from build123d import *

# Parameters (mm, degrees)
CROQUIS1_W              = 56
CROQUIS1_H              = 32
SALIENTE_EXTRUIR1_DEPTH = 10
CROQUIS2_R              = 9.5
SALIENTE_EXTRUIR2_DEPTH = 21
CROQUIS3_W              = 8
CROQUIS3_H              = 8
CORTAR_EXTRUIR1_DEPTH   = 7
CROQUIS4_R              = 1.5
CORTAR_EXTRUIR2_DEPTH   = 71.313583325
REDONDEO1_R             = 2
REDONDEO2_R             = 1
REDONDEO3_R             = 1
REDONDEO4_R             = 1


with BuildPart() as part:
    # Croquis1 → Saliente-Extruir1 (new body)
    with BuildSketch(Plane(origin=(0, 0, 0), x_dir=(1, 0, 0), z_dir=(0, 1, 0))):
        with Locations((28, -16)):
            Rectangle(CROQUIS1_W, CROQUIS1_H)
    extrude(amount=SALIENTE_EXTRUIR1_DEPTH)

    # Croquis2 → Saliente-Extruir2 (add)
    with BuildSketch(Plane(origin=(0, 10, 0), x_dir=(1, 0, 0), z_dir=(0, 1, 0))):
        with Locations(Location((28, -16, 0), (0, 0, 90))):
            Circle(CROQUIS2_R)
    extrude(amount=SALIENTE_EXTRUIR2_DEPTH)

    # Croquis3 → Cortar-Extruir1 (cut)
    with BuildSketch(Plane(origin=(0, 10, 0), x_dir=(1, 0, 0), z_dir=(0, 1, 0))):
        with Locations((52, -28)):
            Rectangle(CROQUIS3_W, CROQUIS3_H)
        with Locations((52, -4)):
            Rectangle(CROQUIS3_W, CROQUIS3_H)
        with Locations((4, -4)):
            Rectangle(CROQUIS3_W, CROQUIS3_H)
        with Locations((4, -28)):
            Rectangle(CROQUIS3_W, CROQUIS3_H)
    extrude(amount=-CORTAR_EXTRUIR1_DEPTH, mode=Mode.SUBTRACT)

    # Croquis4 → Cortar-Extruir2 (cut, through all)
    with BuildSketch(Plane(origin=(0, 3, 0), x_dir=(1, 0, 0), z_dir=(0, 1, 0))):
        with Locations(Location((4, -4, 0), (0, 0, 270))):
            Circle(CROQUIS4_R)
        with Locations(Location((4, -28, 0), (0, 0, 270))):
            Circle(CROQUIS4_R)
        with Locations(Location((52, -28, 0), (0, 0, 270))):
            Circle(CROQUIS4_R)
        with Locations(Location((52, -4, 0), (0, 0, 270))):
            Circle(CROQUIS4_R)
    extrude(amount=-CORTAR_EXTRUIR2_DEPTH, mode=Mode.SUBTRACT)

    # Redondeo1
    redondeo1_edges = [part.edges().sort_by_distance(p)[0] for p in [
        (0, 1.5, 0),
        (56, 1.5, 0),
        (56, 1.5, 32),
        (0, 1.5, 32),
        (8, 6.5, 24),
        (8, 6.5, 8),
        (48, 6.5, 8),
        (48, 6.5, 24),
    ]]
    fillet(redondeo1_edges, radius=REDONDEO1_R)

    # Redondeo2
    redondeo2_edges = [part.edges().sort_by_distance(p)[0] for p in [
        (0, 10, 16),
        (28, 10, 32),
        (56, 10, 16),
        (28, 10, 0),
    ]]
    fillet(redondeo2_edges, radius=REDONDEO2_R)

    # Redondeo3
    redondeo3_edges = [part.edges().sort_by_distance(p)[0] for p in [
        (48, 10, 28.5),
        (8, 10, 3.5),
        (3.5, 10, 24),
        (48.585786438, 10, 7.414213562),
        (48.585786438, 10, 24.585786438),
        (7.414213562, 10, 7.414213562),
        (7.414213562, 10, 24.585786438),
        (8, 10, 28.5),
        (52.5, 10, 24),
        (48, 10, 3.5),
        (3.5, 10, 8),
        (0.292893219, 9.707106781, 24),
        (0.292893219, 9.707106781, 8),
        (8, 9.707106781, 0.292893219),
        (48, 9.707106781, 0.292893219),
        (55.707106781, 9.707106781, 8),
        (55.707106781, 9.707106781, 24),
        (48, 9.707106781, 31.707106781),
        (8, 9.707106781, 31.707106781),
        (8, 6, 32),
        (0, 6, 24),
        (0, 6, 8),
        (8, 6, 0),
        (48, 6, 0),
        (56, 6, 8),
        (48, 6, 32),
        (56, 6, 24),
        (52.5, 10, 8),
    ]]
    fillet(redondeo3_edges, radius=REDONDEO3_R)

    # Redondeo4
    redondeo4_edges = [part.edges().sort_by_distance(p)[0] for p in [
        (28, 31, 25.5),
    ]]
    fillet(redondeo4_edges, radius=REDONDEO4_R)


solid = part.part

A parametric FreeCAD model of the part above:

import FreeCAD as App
import Part
import Sketcher
from FreeCAD import Vector


def edges_at(feature, points):
    """Names of the edges that pass closest to the given points."""
    edges = feature.Shape.Edges
    near = lambda p: min(range(len(edges)), key=lambda i: edges[i].distToShape(Part.Vertex(*p))[0])
    return sorted({f"Edge{near(p) + 1}" for p in points})


def add_polygon(sketch, points):
    """Adds a closed chain of lines whose ends are joined by coincident constraints."""
    first, n = sketch.GeometryCount, len(points)
    for a, b in zip(points, points[1:] + points[:1]):
        sketch.addGeometry(Part.LineSegment(App.Vector(*a, 0), App.Vector(*b, 0)), False)
    for i in range(n):
        sketch.addConstraint(Sketcher.Constraint("Coincident", first + i, 2, first + (i + 1) % n, 1))

doc = App.newDocument("Part")
params = doc.addObject("Spreadsheet::Sheet", "Params")
for row, (alias, value) in enumerate([
    ("sketch1_width", "56 mm"),
    ("sketch1_height", "32 mm"),
    ("pad1_length", "10 mm"),
    ("sketch2_diameter", "19 mm"),
    ("pad2_length", "21 mm"),
    ("sketch3_width", "8 mm"),
    ("pocket1_length", "7 mm"),
    ("sketch4_diameter", "3 mm"),
    ("fillet_radius", "2 mm"),
    ("fillet2_radius", "1 mm"),
    ("fillet3_radius", "1 mm"),
    ("fillet4_radius", "1 mm"),
], start=1):
    params.set(f"A{row}", alias)
    params.set(f"B{row}", "=" + value)
    params.setAlias(f"B{row}", alias)

body = doc.addObject("PartDesign::Body", "Body")

sketch1 = body.newObject("Sketcher::SketchObject", "Sketch")
sketch1.AttachmentSupport = (doc.getObject("XZ_Plane"), [""])
sketch1.MapMode = "FlatFace"
add_polygon(sketch1, [(0, 0), (0, 32), (56, 32), (56, 0)])
sketch1.addConstraint(Sketcher.Constraint("Vertical", 0))
sketch1.addConstraint(Sketcher.Constraint("Horizontal", 1))
sketch1.addConstraint(Sketcher.Constraint("Vertical", 2))
sketch1.addConstraint(Sketcher.Constraint("Horizontal", 3))
sketch1.addConstraint(Sketcher.Constraint("Coincident", 3, 2, -1, 1))
sketch1.addConstraint(Sketcher.Constraint("DistanceX", 1, 1, 1, 2, 56.0))
sketch1.addConstraint(Sketcher.Constraint("DistanceY", 0, 1, 0, 2, 32.0))
sketch1.setExpression("Constraints[9]", "Params.sketch1_width")
sketch1.setExpression("Constraints[10]", "Params.sketch1_height")
pad1 = body.newObject("PartDesign::Pad", "Pad")
pad1.Profile = sketch1
pad1.setExpression("Length", "Params.pad1_length")
pad1.Reversed = True

sketch2 = body.newObject("Sketcher::SketchObject", "Sketch001")
sketch2.AttachmentSupport = (doc.getObject("XZ_Plane"), [""])
sketch2.MapMode = "FlatFace"
sketch2.AttachmentOffset = App.Placement(Vector(0, 0, -10), App.Rotation())
sketch2.addGeometry(Part.Circle(Vector(28, 16, 0), Vector(0, 0, 1), 10), False)
sketch2.addConstraint(Sketcher.Constraint("Diameter", 0, 19.0))
sketch2.addConstraint(Sketcher.Constraint("DistanceX", -1, 1, 0, 3, 28.0))
sketch2.addConstraint(Sketcher.Constraint("DistanceY", -1, 1, 0, 3, 16.0))
sketch2.setExpression("Constraints[0]", "Params.sketch2_diameter")
pad2 = body.newObject("PartDesign::Pad", "Pad001")
pad2.Profile = sketch2
pad2.setExpression("Length", "Params.pad2_length")
pad2.Reversed = True

sketch3 = body.newObject("Sketcher::SketchObject", "Sketch002")
sketch3.AttachmentSupport = (doc.getObject("XZ_Plane"), [""])
sketch3.MapMode = "FlatFace"
sketch3.AttachmentOffset = App.Placement(Vector(0, 0, -10), App.Rotation())
add_polygon(sketch3, [(48, 24), (48, 32), (56, 32), (56, 24)])
add_polygon(sketch3, [(48, 0), (48, 8), (56, 8), (56, 0)])
add_polygon(sketch3, [(0, 0), (0, 8), (8, 8), (8, 0)])
add_polygon(sketch3, [(0, 24), (0, 32), (8, 32), (8, 24)])
sketch3.addConstraint(Sketcher.Constraint("Vertical", 0))
sketch3.addConstraint(Sketcher.Constraint("Horizontal", 1))
sketch3.addConstraint(Sketcher.Constraint("Vertical", 2))
sketch3.addConstraint(Sketcher.Constraint("Horizontal", 3))
sketch3.addConstraint(Sketcher.Constraint("Vertical", 4))
sketch3.addConstraint(Sketcher.Constraint("Horizontal", 5))
sketch3.addConstraint(Sketcher.Constraint("Vertical", 6))
sketch3.addConstraint(Sketcher.Constraint("Horizontal", 7))
sketch3.addConstraint(Sketcher.Constraint("Vertical", 8))
sketch3.addConstraint(Sketcher.Constraint("Horizontal", 9))
sketch3.addConstraint(Sketcher.Constraint("Vertical", 10))
sketch3.addConstraint(Sketcher.Constraint("Horizontal", 11))
sketch3.addConstraint(Sketcher.Constraint("Vertical", 12))
sketch3.addConstraint(Sketcher.Constraint("Horizontal", 13))
sketch3.addConstraint(Sketcher.Constraint("Vertical", 14))
sketch3.addConstraint(Sketcher.Constraint("Horizontal", 15))
sketch3.addConstraint(Sketcher.Constraint("Coincident", 11, 2, -1, 1))
sketch3.addConstraint(Sketcher.Constraint("PointOnObject", 6, 2, -1))
sketch3.addConstraint(Sketcher.Constraint("PointOnObject", 12, 2, -2))
sketch3.addConstraint(Sketcher.Constraint("Horizontal", 5, 2, 8, 2))
sketch3.addConstraint(Sketcher.Constraint("Horizontal", 1, 2, 12, 2))
sketch3.addConstraint(Sketcher.Constraint("Horizontal", 3, 2, 14, 2))
sketch3.addConstraint(Sketcher.Constraint("Vertical", 3, 2, 4, 2))
sketch3.addConstraint(Sketcher.Constraint("Vertical", 2, 2, 5, 2))
sketch3.addConstraint(Sketcher.Constraint("Vertical", 10, 2, 13, 2))
sketch3.addConstraint(Sketcher.Constraint("Equal", 7, 9))
sketch3.addConstraint(Sketcher.Constraint("Equal", 15, 0))
sketch3.addConstraint(Sketcher.Constraint("Equal", 2, 4))
sketch3.addConstraint(Sketcher.Constraint("DistanceX", 1, 1, 1, 2, 8.0))
sketch3.addConstraint(Sketcher.Constraint("DistanceX", -1, 1, 0, 2, 48.0))
sketch3.addConstraint(Sketcher.Constraint("DistanceY", -1, 1, 0, 2, 32.0))
sketch3.setExpression("Constraints[44]", "Params.sketch3_width")
pocket1 = body.newObject("PartDesign::Pocket", "Pocket")
pocket1.Profile = sketch3
pocket1.setExpression("Length", "Params.pocket1_length")
pocket1.Reversed = True

sketch4 = body.newObject("Sketcher::SketchObject", "Sketch003")
sketch4.AttachmentSupport = (doc.getObject("XZ_Plane"), [""])
sketch4.MapMode = "FlatFace"
sketch4.AttachmentOffset = App.Placement(Vector(0, 0, -3), App.Rotation())
sketch4.addGeometry(Part.Circle(Vector(4, 4, 0), Vector(0, 0, 1), 1.5), False)
sketch4.addGeometry(Part.Circle(Vector(4, 28, 0), Vector(0, 0, 1), 1.5), False)
sketch4.addGeometry(Part.Circle(Vector(52, 28, 0), Vector(0, 0, 1), 1.5), False)
sketch4.addGeometry(Part.Circle(Vector(52, 4, 0), Vector(0, 0, 1), 1.5), False)
sketch4.addConstraint(Sketcher.Constraint("Equal", 0, 1))
sketch4.addConstraint(Sketcher.Constraint("Equal", 1, 2))
sketch4.addConstraint(Sketcher.Constraint("Equal", 2, 3))
sketch4.addConstraint(Sketcher.Constraint("Horizontal", 1, 3, 2, 3))
sketch4.addConstraint(Sketcher.Constraint("Horizontal", 0, 3, 3, 3))
sketch4.addConstraint(Sketcher.Constraint("Vertical", 0, 3, 1, 3))
sketch4.addConstraint(Sketcher.Constraint("Vertical", 2, 3, 3, 3))
sketch4.addConstraint(Sketcher.Constraint("Diameter", 0, 3.0))
sketch4.addConstraint(Sketcher.Constraint("DistanceX", -1, 1, 0, 3, 4.0))
sketch4.addConstraint(Sketcher.Constraint("DistanceY", -1, 1, 0, 3, 4.0))
sketch4.addConstraint(Sketcher.Constraint("DistanceY", -1, 1, 1, 3, 28.0))
sketch4.addConstraint(Sketcher.Constraint("DistanceX", -1, 1, 2, 3, 52.0))
sketch4.setExpression("Constraints[7]", "Params.sketch4_diameter")
pocket2 = body.newObject("PartDesign::Pocket", "Pocket001")
pocket2.Profile = sketch4
pocket2.Type = "ThroughAll"
pocket2.Reversed = True
doc.recompute()

fillet = body.newObject("PartDesign::Fillet", "Fillet")
fillet.Base = (pocket2, edges_at(pocket2, [
    (0, 1.5, 0),
    (56, 1.5, 0),
    (56, 1.5, 32),
    (0, 1.5, 32),
    (8, 6.5, 24),
    (8, 6.5, 8),
    (48, 6.5, 8),
    (48, 6.5, 24),
]))
fillet.setExpression("Radius", "Params.fillet_radius")
doc.recompute()

fillet2 = body.newObject("PartDesign::Fillet", "Fillet001")
fillet2.Base = (fillet, edges_at(fillet, [
    (0, 10, 16),
    (28, 10, 32),
    (56, 10, 16),
    (28, 10, 0),
]))
fillet2.setExpression("Radius", "Params.fillet2_radius")
doc.recompute()

fillet3 = body.newObject("PartDesign::Fillet", "Fillet002")
fillet3.Base = (fillet2, edges_at(fillet2, [
    (48, 10, 28.5),
    (8, 10, 3.5),
    (3.5, 10, 24),
    (48.586, 10, 7.414),
    (48.586, 10, 24.586),
    (7.414, 10, 7.414),
    (7.414, 10, 24.586),
    (8, 10, 28.5),
    (52.5, 10, 24),
    (48, 10, 3.5),
    (3.5, 10, 8),
    (0.293, 9.707, 24),
    (0.293, 9.707, 8),
    (8, 9.707, 0.293),
    (48, 9.707, 0.293),
    (55.707, 9.707, 8),
    (55.707, 9.707, 24),
    (48, 9.707, 31.707),
    (8, 9.707, 31.707),
    (8, 6, 32),
    (0, 6, 24),
    (0, 6, 8),
    (8, 6, 0),
    (48, 6, 0),
    (56, 6, 8),
    (48, 6, 32),
    (56, 6, 24),
    (52.5, 10, 8),
]))
fillet3.setExpression("Radius", "Params.fillet3_radius")
doc.recompute()

fillet4 = body.newObject("PartDesign::Fillet", "Fillet003")
fillet4.Base = (fillet3, edges_at(fillet3, [(28, 31, 25.5)]))
fillet4.setExpression("Radius", "Params.fillet4_radius")

doc.recompute()
